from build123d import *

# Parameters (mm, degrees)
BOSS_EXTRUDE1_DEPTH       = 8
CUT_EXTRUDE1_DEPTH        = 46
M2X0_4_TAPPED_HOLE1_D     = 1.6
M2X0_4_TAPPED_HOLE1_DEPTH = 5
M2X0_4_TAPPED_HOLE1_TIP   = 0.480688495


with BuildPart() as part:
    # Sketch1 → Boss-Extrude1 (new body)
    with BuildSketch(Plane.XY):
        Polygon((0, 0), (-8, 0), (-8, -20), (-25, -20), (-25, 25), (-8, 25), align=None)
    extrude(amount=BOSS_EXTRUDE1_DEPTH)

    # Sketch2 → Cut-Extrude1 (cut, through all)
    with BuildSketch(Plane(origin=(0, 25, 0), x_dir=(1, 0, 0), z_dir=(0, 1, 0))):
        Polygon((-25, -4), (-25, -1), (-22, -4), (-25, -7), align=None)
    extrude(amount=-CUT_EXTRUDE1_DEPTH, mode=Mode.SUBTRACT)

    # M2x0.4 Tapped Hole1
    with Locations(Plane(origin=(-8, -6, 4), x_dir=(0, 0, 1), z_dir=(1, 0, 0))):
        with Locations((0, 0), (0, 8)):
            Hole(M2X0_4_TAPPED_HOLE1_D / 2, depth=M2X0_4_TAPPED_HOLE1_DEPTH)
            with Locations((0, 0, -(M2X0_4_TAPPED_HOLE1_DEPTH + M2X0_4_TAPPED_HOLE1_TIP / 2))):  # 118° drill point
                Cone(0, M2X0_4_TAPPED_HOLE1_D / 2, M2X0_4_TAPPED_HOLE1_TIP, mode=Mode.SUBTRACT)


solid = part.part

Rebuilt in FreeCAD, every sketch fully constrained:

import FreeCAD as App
import Part
import Sketcher

doc = App.newDocument("Part")
body = doc.addObject("PartDesign::Body", "Body")

sketch1 = doc.addObject("Sketcher::SketchObject", "Sketch")
body.addObject(sketch1)
sketch1.AttachmentSupport = (doc.XY_Plane, [""])
sketch1.MapMode = "FlatFace"
sketch1.addGeometry([
    Part.LineSegment(App.Vector(-8, 0, 0), App.Vector(0, 0, 0)),
    Part.LineSegment(App.Vector(0, 0, 0), App.Vector(-8, 25, 0)),
    Part.LineSegment(App.Vector(-8, 25, 0), App.Vector(-25, 25, 0)),
    Part.LineSegment(App.Vector(-25, 25, 0), App.Vector(-25, -20, 0)),
    Part.LineSegment(App.Vector(-25, -20, 0), App.Vector(-8, -20, 0)),
    Part.LineSegment(App.Vector(-8, -20, 0), App.Vector(-8, 0, 0)),
], False)
sketch1.addConstraint([
    Sketcher.Constraint("Coincident", 0, 2, 1, 1),
    Sketcher.Constraint("Coincident", 1, 2, 2, 1),
    Sketcher.Constraint("Coincident", 2, 2, 3, 1),
    Sketcher.Constraint("Coincident", 3, 2, 4, 1),
    Sketcher.Constraint("Coincident", 4, 2, 5, 1),
    Sketcher.Constraint("Coincident", 5, 2, 0, 1),
    Sketcher.Constraint("Horizontal", 0),
    Sketcher.Constraint("Horizontal", 2),
    Sketcher.Constraint("Vertical", 3),
    Sketcher.Constraint("Horizontal", 4),
    Sketcher.Constraint("Vertical", 5),
    Sketcher.Constraint("Coincident", 0, 2, -1, 1),
    Sketcher.Constraint("Vertical", 1, 2, 4, 2),
    Sketcher.Constraint("DistanceX", 0, 1, 0, 2, 8.0),
    Sketcher.Constraint("DistanceX", 2, 2, 2, 1, 17.0),
    Sketcher.Constraint("DistanceY", 3, 2, 3, 1, 45.0),
    Sketcher.Constraint("DistanceY", 5, 1, 5, 2, 20.0),
])
pad1 = doc.addObject("PartDesign::Pad", "Pad")
body.addObject(pad1)
pad1.Profile = sketch1
pad1.Length = 8

sketch2 = doc.addObject("Sketcher::SketchObject", "Sketch001")
body.addObject(sketch2)
sketch2.AttachmentSupport = (doc.XZ_Plane, [""])
sketch2.MapMode = "FlatFace"
sketch2.AttachmentOffset = App.Placement(App.Vector(0, 0, -25), App.Rotation())
sketch2.addGeometry([
    Part.LineSegment(App.Vector(-25, 1, 0), App.Vector(-25, 7, 0)),
    Part.LineSegment(App.Vector(-25, 7, 0), App.Vector(-22, 4, 0)),
    Part.LineSegment(App.Vector(-22, 4, 0), App.Vector(-25, 1, 0)),
], False)
sketch2.addConstraint([
    Sketcher.Constraint("Coincident", 0, 2, 1, 1),
    Sketcher.Constraint("Coincident", 1, 2, 2, 1),
    Sketcher.Constraint("Coincident", 2, 2, 0, 1),
    Sketcher.Constraint("Vertical", 0),
    Sketcher.Constraint("Perpendicular", 1, 2),
    Sketcher.Constraint("Equal", 1, 2),
    Sketcher.Constraint("DistanceY", 0, 1, 0, 2, 6.0),
    Sketcher.Constraint("DistanceX", 0, 2, -1, 1, 25.0),
    Sketcher.Constraint("DistanceY", -1, 1, 0, 2, 7.0),
])
pocket1 = doc.addObject("PartDesign::Pocket", "Pocket")
body.addObject(pocket1)
pocket1.Profile = sketch2
pocket1.Type = "ThroughAll"
pocket1.Reversed = True

sketch3 = doc.addObject("Sketcher::SketchObject", "Sketch002")
body.addObject(sketch3)
sketch3.AttachmentSupport = (doc.YZ_Plane, [""])
sketch3.MapMode = "FlatFace"
sketch3.AttachmentOffset = App.Placement(App.Vector(0, 0, -8), App.Rotation())
sketch3.addGeometry([
    Part.Circle(App.Vector(-6, 4, 0), App.Vector(0, 0, 1), 0.8),
    Part.Circle(App.Vector(-14, 4, 0), App.Vector(0, 0, 1), 0.8),
], False)
sketch3.addConstraint([
    Sketcher.Constraint("Equal", 0, 1),
    Sketcher.Constraint("Horizontal", 0, 3, 1, 3),
    Sketcher.Constraint("Diameter", 0, 1.6),
    Sketcher.Constraint("DistanceX", 0, 3, -1, 1, 6.0),
    Sketcher.Constraint("DistanceY", -1, 1, 0, 3, 4.0),
    Sketcher.Constraint("DistanceX", 1, 3, -1, 1, 14.0),
])
doc.recompute()
hole = doc.addObject("PartDesign::Hole", "Hole")
body.addObject(hole)
hole.Profile = sketch3
hole.ThreadType = "None"
hole.Diameter = 1.6
hole.DepthType = "Dimension"
hole.Depth = 5
hole.DrillPoint = "Angled"
hole.DrillPointAngle = 118

doc.recompute()
